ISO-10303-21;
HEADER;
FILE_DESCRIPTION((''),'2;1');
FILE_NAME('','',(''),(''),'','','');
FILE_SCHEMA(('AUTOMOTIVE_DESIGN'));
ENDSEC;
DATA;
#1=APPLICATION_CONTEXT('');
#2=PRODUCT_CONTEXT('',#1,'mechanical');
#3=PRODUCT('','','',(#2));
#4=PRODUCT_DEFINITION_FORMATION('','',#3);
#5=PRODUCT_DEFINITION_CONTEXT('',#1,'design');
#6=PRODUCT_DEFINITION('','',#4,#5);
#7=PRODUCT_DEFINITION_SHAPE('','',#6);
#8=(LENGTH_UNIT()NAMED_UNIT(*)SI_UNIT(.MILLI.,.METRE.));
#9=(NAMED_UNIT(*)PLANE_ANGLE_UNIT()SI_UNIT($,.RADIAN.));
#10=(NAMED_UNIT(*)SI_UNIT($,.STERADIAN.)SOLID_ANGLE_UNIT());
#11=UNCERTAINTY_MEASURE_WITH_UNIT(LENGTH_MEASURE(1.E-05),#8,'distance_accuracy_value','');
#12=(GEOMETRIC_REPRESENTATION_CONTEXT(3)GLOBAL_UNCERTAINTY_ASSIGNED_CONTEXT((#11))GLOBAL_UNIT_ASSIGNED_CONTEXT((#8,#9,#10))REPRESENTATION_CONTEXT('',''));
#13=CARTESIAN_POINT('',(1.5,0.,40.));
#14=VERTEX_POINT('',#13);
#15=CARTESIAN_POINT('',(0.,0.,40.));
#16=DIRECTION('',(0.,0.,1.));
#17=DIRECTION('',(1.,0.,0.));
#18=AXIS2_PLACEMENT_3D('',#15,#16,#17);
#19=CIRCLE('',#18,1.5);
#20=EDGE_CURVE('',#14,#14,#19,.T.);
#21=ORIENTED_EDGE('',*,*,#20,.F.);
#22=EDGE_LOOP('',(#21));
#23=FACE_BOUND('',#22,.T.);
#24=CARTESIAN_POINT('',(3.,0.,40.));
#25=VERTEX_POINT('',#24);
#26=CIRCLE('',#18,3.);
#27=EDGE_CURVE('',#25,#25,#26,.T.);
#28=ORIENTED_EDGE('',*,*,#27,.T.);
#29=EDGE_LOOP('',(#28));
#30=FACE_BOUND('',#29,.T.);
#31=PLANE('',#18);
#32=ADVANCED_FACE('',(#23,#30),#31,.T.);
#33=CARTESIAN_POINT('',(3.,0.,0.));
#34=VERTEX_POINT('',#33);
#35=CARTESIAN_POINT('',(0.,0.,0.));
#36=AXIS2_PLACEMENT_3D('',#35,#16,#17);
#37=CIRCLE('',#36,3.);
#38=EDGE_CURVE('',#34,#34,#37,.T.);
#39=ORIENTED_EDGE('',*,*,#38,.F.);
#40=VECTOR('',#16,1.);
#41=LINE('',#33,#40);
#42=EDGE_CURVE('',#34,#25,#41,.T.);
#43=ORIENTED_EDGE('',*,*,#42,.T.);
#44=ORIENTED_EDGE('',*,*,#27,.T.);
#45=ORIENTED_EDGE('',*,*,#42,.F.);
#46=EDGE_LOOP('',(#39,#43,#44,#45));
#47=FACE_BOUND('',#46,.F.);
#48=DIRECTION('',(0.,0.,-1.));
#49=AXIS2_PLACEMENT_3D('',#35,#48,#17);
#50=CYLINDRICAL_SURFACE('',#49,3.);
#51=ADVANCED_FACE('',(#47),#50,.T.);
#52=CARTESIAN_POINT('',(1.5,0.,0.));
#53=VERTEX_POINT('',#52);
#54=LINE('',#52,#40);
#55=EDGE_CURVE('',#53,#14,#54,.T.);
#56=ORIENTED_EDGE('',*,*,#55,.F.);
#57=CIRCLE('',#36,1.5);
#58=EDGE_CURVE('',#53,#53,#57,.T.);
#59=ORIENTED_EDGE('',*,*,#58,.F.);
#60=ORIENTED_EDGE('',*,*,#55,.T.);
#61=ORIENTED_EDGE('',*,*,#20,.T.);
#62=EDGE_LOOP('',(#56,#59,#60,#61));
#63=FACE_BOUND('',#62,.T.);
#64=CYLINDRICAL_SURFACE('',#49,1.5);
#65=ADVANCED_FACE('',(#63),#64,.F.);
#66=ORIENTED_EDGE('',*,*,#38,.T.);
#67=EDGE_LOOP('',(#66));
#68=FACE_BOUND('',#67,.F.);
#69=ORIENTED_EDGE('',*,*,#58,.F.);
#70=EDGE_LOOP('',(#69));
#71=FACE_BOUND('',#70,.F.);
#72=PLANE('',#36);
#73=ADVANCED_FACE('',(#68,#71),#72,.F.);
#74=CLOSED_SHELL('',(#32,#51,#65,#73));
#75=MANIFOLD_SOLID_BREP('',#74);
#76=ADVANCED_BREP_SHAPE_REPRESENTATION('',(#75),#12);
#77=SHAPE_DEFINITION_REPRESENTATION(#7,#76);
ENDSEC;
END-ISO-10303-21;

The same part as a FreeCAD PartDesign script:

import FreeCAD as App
import Part
import Sketcher
Q = App.Units.Quantity

doc = App.newDocument("Part")
body = doc.addObject("PartDesign::Body", "Body")

# Sketch on XY plane
sketch1 = body.newObject("Sketcher::SketchObject", "Sketch")
sketch1.AttachmentSupport = (doc.getObject("XY_Plane"), [""])
sketch1.MapMode = "FlatFace"
sketch1.addGeometry([
    Part.Circle(App.Vector(0, 0, 0), App.Vector(0, 0, 1), 3),
    Part.Circle(App.Vector(0, 0, 0), App.Vector(0, 0, 1), 1.5),
], False)
sketch1.addConstraint([
    Sketcher.Constraint("Coincident", 0, 3, -1, 1),
    Sketcher.Constraint("Coincident", 1, 3, -1, 1),
    Sketcher.Constraint("Diameter", 0, Q("6 mm")),
    Sketcher.Constraint("Diameter", 1, Q("3 mm")),
])
pad1 = body.newObject("PartDesign::Pad", "Pad")
pad1.Profile = sketch1
pad1.Length = 40

doc.recompute()
